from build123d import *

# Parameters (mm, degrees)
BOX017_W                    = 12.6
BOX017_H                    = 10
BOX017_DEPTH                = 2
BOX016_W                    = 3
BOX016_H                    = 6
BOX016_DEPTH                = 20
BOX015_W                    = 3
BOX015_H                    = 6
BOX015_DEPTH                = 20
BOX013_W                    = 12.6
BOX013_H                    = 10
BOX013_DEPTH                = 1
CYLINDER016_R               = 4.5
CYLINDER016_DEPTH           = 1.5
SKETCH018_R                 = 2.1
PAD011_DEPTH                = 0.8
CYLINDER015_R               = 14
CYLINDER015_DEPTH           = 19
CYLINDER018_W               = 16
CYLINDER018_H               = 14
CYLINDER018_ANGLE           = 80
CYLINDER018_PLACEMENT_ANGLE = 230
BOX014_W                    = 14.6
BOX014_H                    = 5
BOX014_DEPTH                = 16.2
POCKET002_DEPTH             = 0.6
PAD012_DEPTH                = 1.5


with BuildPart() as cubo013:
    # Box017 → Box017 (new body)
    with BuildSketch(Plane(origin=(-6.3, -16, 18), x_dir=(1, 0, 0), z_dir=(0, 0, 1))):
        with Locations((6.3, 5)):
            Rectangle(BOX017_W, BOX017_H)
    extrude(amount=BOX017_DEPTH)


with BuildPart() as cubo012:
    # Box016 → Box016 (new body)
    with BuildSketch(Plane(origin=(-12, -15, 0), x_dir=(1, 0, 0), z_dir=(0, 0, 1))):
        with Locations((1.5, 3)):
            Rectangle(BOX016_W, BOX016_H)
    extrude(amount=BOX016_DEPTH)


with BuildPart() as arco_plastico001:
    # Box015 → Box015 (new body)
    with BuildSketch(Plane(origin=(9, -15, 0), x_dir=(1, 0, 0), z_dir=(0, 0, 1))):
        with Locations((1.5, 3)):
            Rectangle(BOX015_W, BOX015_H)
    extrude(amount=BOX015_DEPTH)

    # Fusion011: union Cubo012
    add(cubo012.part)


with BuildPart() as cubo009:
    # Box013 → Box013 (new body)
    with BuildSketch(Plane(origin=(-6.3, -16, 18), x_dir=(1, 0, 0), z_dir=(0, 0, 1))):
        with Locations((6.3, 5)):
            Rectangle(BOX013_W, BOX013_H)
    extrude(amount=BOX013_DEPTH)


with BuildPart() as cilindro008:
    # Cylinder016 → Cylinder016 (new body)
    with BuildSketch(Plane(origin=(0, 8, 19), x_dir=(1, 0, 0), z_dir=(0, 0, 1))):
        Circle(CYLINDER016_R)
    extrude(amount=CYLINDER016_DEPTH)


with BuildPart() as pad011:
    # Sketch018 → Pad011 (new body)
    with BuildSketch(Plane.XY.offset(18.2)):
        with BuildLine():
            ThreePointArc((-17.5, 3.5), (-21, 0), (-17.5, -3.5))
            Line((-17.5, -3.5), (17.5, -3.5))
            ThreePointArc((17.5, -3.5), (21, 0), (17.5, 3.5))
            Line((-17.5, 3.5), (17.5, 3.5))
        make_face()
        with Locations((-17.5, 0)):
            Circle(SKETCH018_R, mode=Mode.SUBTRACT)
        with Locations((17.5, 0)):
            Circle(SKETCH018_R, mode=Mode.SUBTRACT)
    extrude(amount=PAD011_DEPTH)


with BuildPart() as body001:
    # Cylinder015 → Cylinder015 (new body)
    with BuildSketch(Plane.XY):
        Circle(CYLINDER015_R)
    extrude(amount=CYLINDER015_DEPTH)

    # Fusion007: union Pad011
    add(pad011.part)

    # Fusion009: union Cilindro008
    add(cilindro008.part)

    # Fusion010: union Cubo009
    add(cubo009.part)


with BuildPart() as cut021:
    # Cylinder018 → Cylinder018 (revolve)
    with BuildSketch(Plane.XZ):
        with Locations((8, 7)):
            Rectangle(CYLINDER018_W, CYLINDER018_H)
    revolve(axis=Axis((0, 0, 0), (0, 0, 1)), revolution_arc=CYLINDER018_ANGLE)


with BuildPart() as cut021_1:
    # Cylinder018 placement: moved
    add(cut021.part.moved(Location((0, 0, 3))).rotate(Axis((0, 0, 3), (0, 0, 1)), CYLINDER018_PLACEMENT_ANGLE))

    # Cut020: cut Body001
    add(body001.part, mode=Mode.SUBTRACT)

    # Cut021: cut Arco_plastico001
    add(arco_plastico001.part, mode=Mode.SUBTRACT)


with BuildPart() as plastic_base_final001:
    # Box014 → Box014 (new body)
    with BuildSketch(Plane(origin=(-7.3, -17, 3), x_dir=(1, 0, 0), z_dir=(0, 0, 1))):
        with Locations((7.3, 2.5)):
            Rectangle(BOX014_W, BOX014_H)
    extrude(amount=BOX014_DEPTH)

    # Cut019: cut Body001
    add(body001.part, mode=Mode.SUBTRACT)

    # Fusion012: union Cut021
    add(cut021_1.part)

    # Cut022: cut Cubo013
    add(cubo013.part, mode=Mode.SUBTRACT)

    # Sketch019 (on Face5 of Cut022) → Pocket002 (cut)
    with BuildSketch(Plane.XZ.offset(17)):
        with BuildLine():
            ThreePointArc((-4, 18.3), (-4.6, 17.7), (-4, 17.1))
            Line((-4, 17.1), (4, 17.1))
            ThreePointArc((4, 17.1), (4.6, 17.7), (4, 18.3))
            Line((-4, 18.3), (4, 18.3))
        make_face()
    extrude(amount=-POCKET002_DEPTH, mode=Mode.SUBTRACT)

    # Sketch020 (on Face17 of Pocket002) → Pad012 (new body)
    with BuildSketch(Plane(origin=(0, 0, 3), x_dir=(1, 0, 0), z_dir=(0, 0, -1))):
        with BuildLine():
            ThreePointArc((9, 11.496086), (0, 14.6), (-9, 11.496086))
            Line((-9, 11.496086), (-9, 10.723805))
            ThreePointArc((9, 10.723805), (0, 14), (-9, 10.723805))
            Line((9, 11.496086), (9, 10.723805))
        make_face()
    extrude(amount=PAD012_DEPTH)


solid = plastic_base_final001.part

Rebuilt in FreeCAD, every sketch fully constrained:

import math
import FreeCAD as App
import Part
import Sketcher

doc = App.newDocument("Part")
body = doc.addObject("PartDesign::Body", "Body")

sketch1 = body.newObject("Sketcher::SketchObject", "Sketch")
sketch1.AttachmentSupport = (doc.getObject("XY_Plane"), [""])
sketch1.MapMode = "FlatFace"
sketch1.AttachmentOffset = App.Placement(App.Vector(0, 0, 18), App.Rotation())
sketch1.addGeometry([
    Part.LineSegment(App.Vector(-6, -6, 0), App.Vector(-6, -16, 0)),
    Part.LineSegment(App.Vector(-6, -16, 0), App.Vector(6, -16, 0)),
    Part.LineSegment(App.Vector(6, -16, 0), App.Vector(6, -6, 0)),
    Part.LineSegment(App.Vector(6, -6, 0), App.Vector(-6, -6, 0)),
], False)
sketch1.addConstraint([
    Sketcher.Constraint("Coincident", 0, 2, 1, 1),
    Sketcher.Constraint("Coincident", 1, 2, 2, 1),
    Sketcher.Constraint("Coincident", 2, 2, 3, 1),
    Sketcher.Constraint("Coincident", 3, 2, 0, 1),
    Sketcher.Constraint("Vertical", 0),
    Sketcher.Constraint("Horizontal", 1),
    Sketcher.Constraint("Vertical", 2),
    Sketcher.Constraint("Horizontal", 3),
    Sketcher.Constraint("DistanceY", 0, 2, 0, 1, 10.0),
    Sketcher.Constraint("DistanceX", 1, 1, 1, 2, 12.6),
    Sketcher.Constraint("DistanceY", 0, 2, -1, 1, 16.0),
    Sketcher.Constraint("DistanceX", 0, 2, -1, 1, 6.3),
])
pad1 = body.newObject("PartDesign::Pad", "Pad")
pad1.Profile = sketch1
pad1.Length = 2
body2 = doc.addObject("PartDesign::Body", "Body001")

sketch2 = body2.newObject("Sketcher::SketchObject", "Sketch001")
sketch2.AttachmentSupport = (doc.getObject("XY_Plane001"), [""])
sketch2.MapMode = "FlatFace"
sketch2.addGeometry([
    Part.LineSegment(App.Vector(-12, -9, 0), App.Vector(-12, -15, 0)),
    Part.LineSegment(App.Vector(-12, -15, 0), App.Vector(-9, -15, 0)),
    Part.LineSegment(App.Vector(-9, -15, 0), App.Vector(-9, -9, 0)),
    Part.LineSegment(App.Vector(-9, -9, 0), App.Vector(-12, -9, 0)),
], False)
sketch2.addConstraint([
    Sketcher.Constraint("Coincident", 0, 2, 1, 1),
    Sketcher.Constraint("Coincident", 1, 2, 2, 1),
    Sketcher.Constraint("Coincident", 2, 2, 3, 1),
    Sketcher.Constraint("Coincident", 3, 2, 0, 1),
    Sketcher.Constraint("Vertical", 0),
    Sketcher.Constraint("Horizontal", 1),
    Sketcher.Constraint("Vertical", 2),
    Sketcher.Constraint("Horizontal", 3),
    Sketcher.Constraint("DistanceX", 1, 1, 1, 2, 3.0),
    Sketcher.Constraint("DistanceY", 0, 2, 0, 1, 6.0),
    Sketcher.Constraint("DistanceX", 0, 2, -1, 1, 12.0),
    Sketcher.Constraint("DistanceY", 0, 2, -1, 1, 15.0),
])
pad2 = body2.newObject("PartDesign::Pad", "Pad001")
pad2.Profile = sketch2
pad2.Length = 20
body3 = doc.addObject("PartDesign::Body", "Body002")
body3.AllowCompound = True

sketch3 = body3.newObject("Sketcher::SketchObject", "Sketch002")
sketch3.AttachmentSupport = (doc.getObject("XY_Plane002"), [""])
sketch3.MapMode = "FlatFace"
sketch3.addGeometry([
    Part.LineSegment(App.Vector(9, -9, 0), App.Vector(9, -15, 0)),
    Part.LineSegment(App.Vector(9, -15, 0), App.Vector(12, -15, 0)),
    Part.LineSegment(App.Vector(12, -15, 0), App.Vector(12, -9, 0)),
    Part.LineSegment(App.Vector(12, -9, 0), App.Vector(9, -9, 0)),
], False)
sketch3.addConstraint([
    Sketcher.Constraint("Coincident", 0, 2, 1, 1),
    Sketcher.Constraint("Coincident", 1, 2, 2, 1),
    Sketcher.Constraint("Coincident", 2, 2, 3, 1),
    Sketcher.Constraint("Coincident", 3, 2, 0, 1),
    Sketcher.Constraint("Vertical", 0),
    Sketcher.Constraint("Horizontal", 1),
    Sketcher.Constraint("Vertical", 2),
    Sketcher.Constraint("Horizontal", 3),
    Sketcher.Constraint("DistanceX", 1, 1, 1, 2, 3.0),
    Sketcher.Constraint("DistanceY", 0, 2, 0, 1, 6.0),
    Sketcher.Constraint("DistanceX", -1, 1, 0, 2, 9.0),
    Sketcher.Constraint("DistanceY", 0, 2, -1, 1, 15.0),
])
pad3 = body3.newObject("PartDesign::Pad", "Pad002")
pad3.Profile = sketch3
pad3.Length = 20
doc.recompute()

boolean = body3.newObject("PartDesign::Boolean", "Boolean")
boolean.Type = "Fuse"
boolean.addObjects([body2])
body4 = doc.addObject("PartDesign::Body", "Body003")

sketch4 = body4.newObject("Sketcher::SketchObject", "Sketch003")
sketch4.AttachmentSupport = (doc.getObject("XY_Plane003"), [""])
sketch4.MapMode = "FlatFace"
sketch4.AttachmentOffset = App.Placement(App.Vector(0, 0, 18), App.Rotation())
sketch4.addGeometry([
    Part.LineSegment(App.Vector(-6, -6, 0), App.Vector(-6, -16, 0)),
    Part.LineSegment(App.Vector(-6, -16, 0), App.Vector(6, -16, 0)),
    Part.LineSegment(App.Vector(6, -16, 0), App.Vector(6, -6, 0)),
    Part.LineSegment(App.Vector(6, -6, 0), App.Vector(-6, -6, 0)),
], False)
sketch4.addConstraint([
    Sketcher.Constraint("Coincident", 0, 2, 1, 1),
    Sketcher.Constraint("Coincident", 1, 2, 2, 1),
    Sketcher.Constraint("Coincident", 2, 2, 3, 1),
    Sketcher.Constraint("Coincident", 3, 2, 0, 1),
    Sketcher.Constraint("Vertical", 0),
    Sketcher.Constraint("Horizontal", 1),
    Sketcher.Constraint("Vertical", 2),
    Sketcher.Constraint("Horizontal", 3),
    Sketcher.Constraint("DistanceY", 0, 2, 0, 1, 10.0),
    Sketcher.Constraint("DistanceX", 1, 1, 1, 2, 12.6),
    Sketcher.Constraint("DistanceY", 0, 2, -1, 1, 16.0),
    Sketcher.Constraint("DistanceX", 0, 2, -1, 1, 6.3),
])
pad4 = body4.newObject("PartDesign::Pad", "Pad003")
pad4.Profile = sketch4
pad4.Length = 1
body5 = doc.addObject("PartDesign::Body", "Body004")

sketch5 = body5.newObject("Sketcher::SketchObject", "Sketch004")
sketch5.AttachmentSupport = (doc.getObject("XY_Plane004"), [""])
sketch5.MapMode = "FlatFace"
sketch5.AttachmentOffset = App.Placement(App.Vector(0, 0, 19), App.Rotation())
sketch5.addGeometry(Part.Circle(App.Vector(0, 8, 0), App.Vector(0, 0, 1), 4.5), False)
sketch5.addConstraint([
    Sketcher.Constraint("PointOnObject", 0, 3, -2),
    Sketcher.Constraint("Diameter", 0, 9.0),
    Sketcher.Constraint("DistanceY", -1, 1, 0, 3, 8.0),
])
pad5 = body5.newObject("PartDesign::Pad", "Pad004")
pad5.Profile = sketch5
pad5.Length = 1.5
body6 = doc.addObject("PartDesign::Body", "Body005")

sketch6 = body6.newObject("Sketcher::SketchObject", "Sketch005")
sketch6.AttachmentSupport = (doc.getObject("XY_Plane005"), [""])
sketch6.MapMode = "FlatFace"
sketch6.AttachmentOffset = App.Placement(App.Vector(0, 0, 18.2), App.Rotation())
sketch6.addGeometry([
    Part.ArcOfCircle(Part.Circle(App.Vector(-17.5, 0, 0), App.Vector(0, 0, 1), 3.5), math.radians(90), math.radians(270)),
    Part.LineSegment(App.Vector(-17.5, -3.5, 0), App.Vector(17.5, -3.5, 0)),
    Part.ArcOfCircle(Part.Circle(App.Vector(17.5, 0, 0), App.Vector(0, 0, 1), 3.5), math.radians(-90), math.radians(90)),
    Part.LineSegment(App.Vector(17.5, 3.5, 0), App.Vector(-17.5, 3.5, 0)),
    Part.Circle(App.Vector(-17.5, 0, 0), App.Vector(0, 0, 1), 2.1),
    Part.Circle(App.Vector(17.5, 0, 0), App.Vector(0, 0, 1), 2.1),
], False)
sketch6.addConstraint([
    Sketcher.Constraint("Tangent", 0, 2, 1, 1),
    Sketcher.Constraint("Tangent", 1, 2, 2, 1),
    Sketcher.Constraint("Tangent", 2, 2, 3, 1),
    Sketcher.Constraint("Tangent", 3, 2, 0, 1),
    Sketcher.Constraint("Horizontal", 1),
    Sketcher.Constraint("Horizontal", 3),
    Sketcher.Constraint("Coincident", 4, 3, 0, 3),
    Sketcher.Constraint("Coincident", 5, 3, 2, 3),
    Sketcher.Constraint("Equal", 4, 5),
    Sketcher.Constraint("Symmetric", 0, 3, 2, 3, -1, 1),
    Sketcher.Constraint("Diameter", 4, 4.2),
    Sketcher.Constraint("Radius", 0, 3.5),
    Sketcher.Constraint("DistanceX", 1, 1, 1, 2, 35.0),
])
pad6 = body6.newObject("PartDesign::Pad", "Pad005")
pad6.Profile = sketch6
pad6.Length = 0.8
body7 = doc.addObject("PartDesign::Body", "Body006")

sketch7 = body7.newObject("Sketcher::SketchObject", "Sketch006")
sketch7.AttachmentSupport = (doc.getObject("XY_Plane006"), [""])
sketch7.MapMode = "FlatFace"
sketch7.addGeometry(Part.Circle(App.Vector(0, 0, 0), App.Vector(0, 0, 1), 14), False)
sketch7.addConstraint([
    Sketcher.Constraint("Coincident", 0, 3, -1, 1),
    Sketcher.Constraint("Diameter", 0, 28.0),
])
pad7 = body7.newObject("PartDesign::Pad", "Pad006")
pad7.Profile = sketch7
pad7.Length = 19
doc.recompute()

boolean2 = body7.newObject("PartDesign::Boolean", "Boolean001")
boolean2.Type = "Fuse"
boolean2.addObjects([body6])
doc.recompute()

boolean3 = body7.newObject("PartDesign::Boolean", "Boolean002")
boolean3.Type = "Fuse"
boolean3.addObjects([body5])
doc.recompute()

boolean4 = body7.newObject("PartDesign::Boolean", "Boolean003")
boolean4.Type = "Fuse"
boolean4.addObjects([body4])
body8 = doc.addObject("PartDesign::Body", "Body007")

sketch8 = body8.newObject("Sketcher::SketchObject", "Sketch007")
sketch8.AttachmentSupport = (doc.getObject("XZ_Plane007"), [""])
sketch8.MapMode = "FlatFace"
sketch8.addGeometry([
    Part.LineSegment(App.Vector(0, 14, 0), App.Vector(0, 0, 0)),
    Part.LineSegment(App.Vector(0, 0, 0), App.Vector(16, 0, 0)),
    Part.LineSegment(App.Vector(16, 0, 0), App.Vector(16, 14, 0)),
    Part.LineSegment(App.Vector(16, 14, 0), App.Vector(0, 14, 0)),
], False)
sketch8.addConstraint([
    Sketcher.Constraint("Coincident", 0, 2, 1, 1),
    Sketcher.Constraint("Coincident", 1, 2, 2, 1),
    Sketcher.Constraint("Coincident", 2, 2, 3, 1),
    Sketcher.Constraint("Coincident", 3, 2, 0, 1),
    Sketcher.Constraint("Vertical", 0),
    Sketcher.Constraint("Horizontal", 1),
    Sketcher.Constraint("Vertical", 2),
    Sketcher.Constraint("Horizontal", 3),
    Sketcher.Constraint("Coincident", 0, 2, -1, 1),
    Sketcher.Constraint("DistanceX", 1, 1, 1, 2, 16.0),
    Sketcher.Constraint("DistanceY", 0, 2, 0, 1, 14.0),
])
revolution = body8.newObject("PartDesign::Revolution", "Revolution")
revolution.Profile = sketch8
revolution.ReferenceAxis = (sketch8, ["V_Axis"])
revolution.Angle = 80
body9 = doc.addObject("PartDesign::Body", "Body008")
doc.recompute()

body8.Placement = App.Placement(App.Vector(0, 0, 3), App.Rotation(App.Vector(0, 0, 1), 230))
boolean5 = body9.newObject("PartDesign::Boolean", "Boolean004")
boolean5.Type = "Fuse"
boolean5.addObjects([body8])
doc.recompute()

body10 = doc.addObject("PartDesign::Body", "Body009")
body10.BaseFeature = body7
boolean6 = body9.newObject("PartDesign::Boolean", "Boolean005")
boolean6.Type = "Cut"
boolean6.addObjects([body10])
doc.recompute()

boolean7 = body9.newObject("PartDesign::Boolean", "Boolean006")
boolean7.Type = "Cut"
boolean7.addObjects([body3])
body11 = doc.addObject("PartDesign::Body", "Body010")

sketch9 = body11.newObject("Sketcher::SketchObject", "Sketch008")
sketch9.AttachmentSupport = (doc.getObject("XY_Plane010"), [""])
sketch9.MapMode = "FlatFace"
sketch9.AttachmentOffset = App.Placement(App.Vector(0, 0, 3), App.Rotation())
sketch9.addGeometry([
    Part.LineSegment(App.Vector(-7, -12, 0), App.Vector(-7, -17, 0)),
    Part.LineSegment(App.Vector(-7, -17, 0), App.Vector(7, -17, 0)),
    Part.LineSegment(App.Vector(7, -17, 0), App.Vector(7, -12, 0)),
    Part.LineSegment(App.Vector(7, -12, 0), App.Vector(-7, -12, 0)),
], False)
sketch9.addConstraint([
    Sketcher.Constraint("Coincident", 0, 2, 1, 1),
    Sketcher.Constraint("Coincident", 1, 2, 2, 1),
    Sketcher.Constraint("Coincident", 2, 2, 3, 1),
    Sketcher.Constraint("Coincident", 3, 2, 0, 1),
    Sketcher.Constraint("Vertical", 0),
    Sketcher.Constraint("Horizontal", 1),
    Sketcher.Constraint("Vertical", 2),
    Sketcher.Constraint("Horizontal", 3),
    Sketcher.Constraint("DistanceY", 0, 2, 0, 1, 5.0),
    Sketcher.Constraint("DistanceX", 1, 1, 1, 2, 14.6),
    Sketcher.Constraint("DistanceY", 0, 2, -1, 1, 17.0),
    Sketcher.Constraint("DistanceX", 0, 2, -1, 1, 7.3),
])
pad8 = body11.newObject("PartDesign::Pad", "Pad007")
pad8.Profile = sketch9
pad8.Length = 16.2
doc.recompute()

boolean8 = body11.newObject("PartDesign::Boolean", "Boolean007")
boolean8.Type = "Cut"
boolean8.addObjects([body7])
doc.recompute()

boolean9 = body11.newObject("PartDesign::Boolean", "Boolean008")
boolean9.Type = "Fuse"
boolean9.addObjects([body9])
doc.recompute()

boolean10 = body11.newObject("PartDesign::Boolean", "Boolean009")
boolean10.Type = "Cut"
boolean10.addObjects([body])

sketch10 = body11.newObject("Sketcher::SketchObject", "Sketch009")
sketch10.AttachmentSupport = (doc.getObject("XZ_Plane010"), [""])
sketch10.MapMode = "FlatFace"
sketch10.AttachmentOffset = App.Placement(App.Vector(0, 0, 17), App.Rotation())
sketch10.addGeometry([
    Part.ArcOfCircle(Part.Circle(App.Vector(-4, 17.7, 0), App.Vector(0, 0, 1), 0.6), math.radians(90), math.radians(270)),
    Part.LineSegment(App.Vector(-4, 17.1, 0), App.Vector(4, 17.1, 0)),
    Part.ArcOfCircle(Part.Circle(App.Vector(4, 17.7, 0), App.Vector(0, 0, 1), 0.6), math.radians(-90), math.radians(90)),
    Part.LineSegment(App.Vector(4, 18.3, 0), App.Vector(-4, 18.3, 0)),
], False)
sketch10.addConstraint([
    Sketcher.Constraint("Tangent", 0, 2, 1, 1),
    Sketcher.Constraint("Tangent", 1, 2, 2, 1),
    Sketcher.Constraint("Tangent", 2, 2, 3, 1),
    Sketcher.Constraint("Tangent", 3, 2, 0, 1),
    Sketcher.Constraint("Horizontal", 1),
    Sketcher.Constraint("Horizontal", 3),
    Sketcher.Constraint("Radius", 0, 0.6),
    Sketcher.Constraint("DistanceX", 1, 1, 1, 2, 8.0),
    Sketcher.Constraint("DistanceX", 0, 3, -1, 1, 4.0),
    Sketcher.Constraint("DistanceY", -1, 1, 0, 3, 17.7),
])
pocket1 = body11.newObject("PartDesign::Pocket", "Pocket")
pocket1.Profile = sketch10
pocket1.Length = 0.6

sketch11 = body11.newObject("Sketcher::SketchObject", "Sketch010")
sketch11.AttachmentSupport = (doc.getObject("XY_Plane010"), [""])
sketch11.MapMode = "FlatFace"
sketch11.AttachmentOffset = App.Placement(App.Vector(0, 0, 3), App.Rotation())
sketch11.addGeometry([
    Part.ArcOfCircle(Part.Circle(App.Vector(0, 0, 0), App.Vector(0, 0, 1), 14.6), math.radians(-128), math.radians(-52)),
    Part.LineSegment(App.Vector(-9, -11.5, 0), App.Vector(-9, -10.7, 0)),
    Part.ArcOfCircle(Part.Circle(App.Vector(0, 0, 0), App.Vector(0, 0, 1), 14), math.radians(-130), math.radians(-50)),
    Part.LineSegment(App.Vector(9, -10.7, 0), App.Vector(9, -11.5, 0)),
], False)
sketch11.addConstraint([
    Sketcher.Constraint("Coincident", 0, 1, 1, 1),
    Sketcher.Constraint("Coincident", 1, 2, 2, 1),
    Sketcher.Constraint("Coincident", 2, 2, 3, 1),
    Sketcher.Constraint("Coincident", 3, 2, 0, 2),
    Sketcher.Constraint("Vertical", 1),
    Sketcher.Constraint("Vertical", 3),
    Sketcher.Constraint("Coincident", 0, 3, -1, 1),
    Sketcher.Constraint("Coincident", 2, 3, -1, 1),
    Sketcher.Constraint("Horizontal", 1, 2, 2, 2),
    Sketcher.Constraint("Radius", 2, 13.999999),
    Sketcher.Constraint("Radius", 0, 14.599999),
    Sketcher.Constraint("DistanceX", 0, 1, -1, 1, 9.0),
])
pad9 = body11.newObject("PartDesign::Pad", "Pad008")
pad9.Profile = sketch11
pad9.Length = 1.5
pad9.Reversed = True

doc.recompute()
